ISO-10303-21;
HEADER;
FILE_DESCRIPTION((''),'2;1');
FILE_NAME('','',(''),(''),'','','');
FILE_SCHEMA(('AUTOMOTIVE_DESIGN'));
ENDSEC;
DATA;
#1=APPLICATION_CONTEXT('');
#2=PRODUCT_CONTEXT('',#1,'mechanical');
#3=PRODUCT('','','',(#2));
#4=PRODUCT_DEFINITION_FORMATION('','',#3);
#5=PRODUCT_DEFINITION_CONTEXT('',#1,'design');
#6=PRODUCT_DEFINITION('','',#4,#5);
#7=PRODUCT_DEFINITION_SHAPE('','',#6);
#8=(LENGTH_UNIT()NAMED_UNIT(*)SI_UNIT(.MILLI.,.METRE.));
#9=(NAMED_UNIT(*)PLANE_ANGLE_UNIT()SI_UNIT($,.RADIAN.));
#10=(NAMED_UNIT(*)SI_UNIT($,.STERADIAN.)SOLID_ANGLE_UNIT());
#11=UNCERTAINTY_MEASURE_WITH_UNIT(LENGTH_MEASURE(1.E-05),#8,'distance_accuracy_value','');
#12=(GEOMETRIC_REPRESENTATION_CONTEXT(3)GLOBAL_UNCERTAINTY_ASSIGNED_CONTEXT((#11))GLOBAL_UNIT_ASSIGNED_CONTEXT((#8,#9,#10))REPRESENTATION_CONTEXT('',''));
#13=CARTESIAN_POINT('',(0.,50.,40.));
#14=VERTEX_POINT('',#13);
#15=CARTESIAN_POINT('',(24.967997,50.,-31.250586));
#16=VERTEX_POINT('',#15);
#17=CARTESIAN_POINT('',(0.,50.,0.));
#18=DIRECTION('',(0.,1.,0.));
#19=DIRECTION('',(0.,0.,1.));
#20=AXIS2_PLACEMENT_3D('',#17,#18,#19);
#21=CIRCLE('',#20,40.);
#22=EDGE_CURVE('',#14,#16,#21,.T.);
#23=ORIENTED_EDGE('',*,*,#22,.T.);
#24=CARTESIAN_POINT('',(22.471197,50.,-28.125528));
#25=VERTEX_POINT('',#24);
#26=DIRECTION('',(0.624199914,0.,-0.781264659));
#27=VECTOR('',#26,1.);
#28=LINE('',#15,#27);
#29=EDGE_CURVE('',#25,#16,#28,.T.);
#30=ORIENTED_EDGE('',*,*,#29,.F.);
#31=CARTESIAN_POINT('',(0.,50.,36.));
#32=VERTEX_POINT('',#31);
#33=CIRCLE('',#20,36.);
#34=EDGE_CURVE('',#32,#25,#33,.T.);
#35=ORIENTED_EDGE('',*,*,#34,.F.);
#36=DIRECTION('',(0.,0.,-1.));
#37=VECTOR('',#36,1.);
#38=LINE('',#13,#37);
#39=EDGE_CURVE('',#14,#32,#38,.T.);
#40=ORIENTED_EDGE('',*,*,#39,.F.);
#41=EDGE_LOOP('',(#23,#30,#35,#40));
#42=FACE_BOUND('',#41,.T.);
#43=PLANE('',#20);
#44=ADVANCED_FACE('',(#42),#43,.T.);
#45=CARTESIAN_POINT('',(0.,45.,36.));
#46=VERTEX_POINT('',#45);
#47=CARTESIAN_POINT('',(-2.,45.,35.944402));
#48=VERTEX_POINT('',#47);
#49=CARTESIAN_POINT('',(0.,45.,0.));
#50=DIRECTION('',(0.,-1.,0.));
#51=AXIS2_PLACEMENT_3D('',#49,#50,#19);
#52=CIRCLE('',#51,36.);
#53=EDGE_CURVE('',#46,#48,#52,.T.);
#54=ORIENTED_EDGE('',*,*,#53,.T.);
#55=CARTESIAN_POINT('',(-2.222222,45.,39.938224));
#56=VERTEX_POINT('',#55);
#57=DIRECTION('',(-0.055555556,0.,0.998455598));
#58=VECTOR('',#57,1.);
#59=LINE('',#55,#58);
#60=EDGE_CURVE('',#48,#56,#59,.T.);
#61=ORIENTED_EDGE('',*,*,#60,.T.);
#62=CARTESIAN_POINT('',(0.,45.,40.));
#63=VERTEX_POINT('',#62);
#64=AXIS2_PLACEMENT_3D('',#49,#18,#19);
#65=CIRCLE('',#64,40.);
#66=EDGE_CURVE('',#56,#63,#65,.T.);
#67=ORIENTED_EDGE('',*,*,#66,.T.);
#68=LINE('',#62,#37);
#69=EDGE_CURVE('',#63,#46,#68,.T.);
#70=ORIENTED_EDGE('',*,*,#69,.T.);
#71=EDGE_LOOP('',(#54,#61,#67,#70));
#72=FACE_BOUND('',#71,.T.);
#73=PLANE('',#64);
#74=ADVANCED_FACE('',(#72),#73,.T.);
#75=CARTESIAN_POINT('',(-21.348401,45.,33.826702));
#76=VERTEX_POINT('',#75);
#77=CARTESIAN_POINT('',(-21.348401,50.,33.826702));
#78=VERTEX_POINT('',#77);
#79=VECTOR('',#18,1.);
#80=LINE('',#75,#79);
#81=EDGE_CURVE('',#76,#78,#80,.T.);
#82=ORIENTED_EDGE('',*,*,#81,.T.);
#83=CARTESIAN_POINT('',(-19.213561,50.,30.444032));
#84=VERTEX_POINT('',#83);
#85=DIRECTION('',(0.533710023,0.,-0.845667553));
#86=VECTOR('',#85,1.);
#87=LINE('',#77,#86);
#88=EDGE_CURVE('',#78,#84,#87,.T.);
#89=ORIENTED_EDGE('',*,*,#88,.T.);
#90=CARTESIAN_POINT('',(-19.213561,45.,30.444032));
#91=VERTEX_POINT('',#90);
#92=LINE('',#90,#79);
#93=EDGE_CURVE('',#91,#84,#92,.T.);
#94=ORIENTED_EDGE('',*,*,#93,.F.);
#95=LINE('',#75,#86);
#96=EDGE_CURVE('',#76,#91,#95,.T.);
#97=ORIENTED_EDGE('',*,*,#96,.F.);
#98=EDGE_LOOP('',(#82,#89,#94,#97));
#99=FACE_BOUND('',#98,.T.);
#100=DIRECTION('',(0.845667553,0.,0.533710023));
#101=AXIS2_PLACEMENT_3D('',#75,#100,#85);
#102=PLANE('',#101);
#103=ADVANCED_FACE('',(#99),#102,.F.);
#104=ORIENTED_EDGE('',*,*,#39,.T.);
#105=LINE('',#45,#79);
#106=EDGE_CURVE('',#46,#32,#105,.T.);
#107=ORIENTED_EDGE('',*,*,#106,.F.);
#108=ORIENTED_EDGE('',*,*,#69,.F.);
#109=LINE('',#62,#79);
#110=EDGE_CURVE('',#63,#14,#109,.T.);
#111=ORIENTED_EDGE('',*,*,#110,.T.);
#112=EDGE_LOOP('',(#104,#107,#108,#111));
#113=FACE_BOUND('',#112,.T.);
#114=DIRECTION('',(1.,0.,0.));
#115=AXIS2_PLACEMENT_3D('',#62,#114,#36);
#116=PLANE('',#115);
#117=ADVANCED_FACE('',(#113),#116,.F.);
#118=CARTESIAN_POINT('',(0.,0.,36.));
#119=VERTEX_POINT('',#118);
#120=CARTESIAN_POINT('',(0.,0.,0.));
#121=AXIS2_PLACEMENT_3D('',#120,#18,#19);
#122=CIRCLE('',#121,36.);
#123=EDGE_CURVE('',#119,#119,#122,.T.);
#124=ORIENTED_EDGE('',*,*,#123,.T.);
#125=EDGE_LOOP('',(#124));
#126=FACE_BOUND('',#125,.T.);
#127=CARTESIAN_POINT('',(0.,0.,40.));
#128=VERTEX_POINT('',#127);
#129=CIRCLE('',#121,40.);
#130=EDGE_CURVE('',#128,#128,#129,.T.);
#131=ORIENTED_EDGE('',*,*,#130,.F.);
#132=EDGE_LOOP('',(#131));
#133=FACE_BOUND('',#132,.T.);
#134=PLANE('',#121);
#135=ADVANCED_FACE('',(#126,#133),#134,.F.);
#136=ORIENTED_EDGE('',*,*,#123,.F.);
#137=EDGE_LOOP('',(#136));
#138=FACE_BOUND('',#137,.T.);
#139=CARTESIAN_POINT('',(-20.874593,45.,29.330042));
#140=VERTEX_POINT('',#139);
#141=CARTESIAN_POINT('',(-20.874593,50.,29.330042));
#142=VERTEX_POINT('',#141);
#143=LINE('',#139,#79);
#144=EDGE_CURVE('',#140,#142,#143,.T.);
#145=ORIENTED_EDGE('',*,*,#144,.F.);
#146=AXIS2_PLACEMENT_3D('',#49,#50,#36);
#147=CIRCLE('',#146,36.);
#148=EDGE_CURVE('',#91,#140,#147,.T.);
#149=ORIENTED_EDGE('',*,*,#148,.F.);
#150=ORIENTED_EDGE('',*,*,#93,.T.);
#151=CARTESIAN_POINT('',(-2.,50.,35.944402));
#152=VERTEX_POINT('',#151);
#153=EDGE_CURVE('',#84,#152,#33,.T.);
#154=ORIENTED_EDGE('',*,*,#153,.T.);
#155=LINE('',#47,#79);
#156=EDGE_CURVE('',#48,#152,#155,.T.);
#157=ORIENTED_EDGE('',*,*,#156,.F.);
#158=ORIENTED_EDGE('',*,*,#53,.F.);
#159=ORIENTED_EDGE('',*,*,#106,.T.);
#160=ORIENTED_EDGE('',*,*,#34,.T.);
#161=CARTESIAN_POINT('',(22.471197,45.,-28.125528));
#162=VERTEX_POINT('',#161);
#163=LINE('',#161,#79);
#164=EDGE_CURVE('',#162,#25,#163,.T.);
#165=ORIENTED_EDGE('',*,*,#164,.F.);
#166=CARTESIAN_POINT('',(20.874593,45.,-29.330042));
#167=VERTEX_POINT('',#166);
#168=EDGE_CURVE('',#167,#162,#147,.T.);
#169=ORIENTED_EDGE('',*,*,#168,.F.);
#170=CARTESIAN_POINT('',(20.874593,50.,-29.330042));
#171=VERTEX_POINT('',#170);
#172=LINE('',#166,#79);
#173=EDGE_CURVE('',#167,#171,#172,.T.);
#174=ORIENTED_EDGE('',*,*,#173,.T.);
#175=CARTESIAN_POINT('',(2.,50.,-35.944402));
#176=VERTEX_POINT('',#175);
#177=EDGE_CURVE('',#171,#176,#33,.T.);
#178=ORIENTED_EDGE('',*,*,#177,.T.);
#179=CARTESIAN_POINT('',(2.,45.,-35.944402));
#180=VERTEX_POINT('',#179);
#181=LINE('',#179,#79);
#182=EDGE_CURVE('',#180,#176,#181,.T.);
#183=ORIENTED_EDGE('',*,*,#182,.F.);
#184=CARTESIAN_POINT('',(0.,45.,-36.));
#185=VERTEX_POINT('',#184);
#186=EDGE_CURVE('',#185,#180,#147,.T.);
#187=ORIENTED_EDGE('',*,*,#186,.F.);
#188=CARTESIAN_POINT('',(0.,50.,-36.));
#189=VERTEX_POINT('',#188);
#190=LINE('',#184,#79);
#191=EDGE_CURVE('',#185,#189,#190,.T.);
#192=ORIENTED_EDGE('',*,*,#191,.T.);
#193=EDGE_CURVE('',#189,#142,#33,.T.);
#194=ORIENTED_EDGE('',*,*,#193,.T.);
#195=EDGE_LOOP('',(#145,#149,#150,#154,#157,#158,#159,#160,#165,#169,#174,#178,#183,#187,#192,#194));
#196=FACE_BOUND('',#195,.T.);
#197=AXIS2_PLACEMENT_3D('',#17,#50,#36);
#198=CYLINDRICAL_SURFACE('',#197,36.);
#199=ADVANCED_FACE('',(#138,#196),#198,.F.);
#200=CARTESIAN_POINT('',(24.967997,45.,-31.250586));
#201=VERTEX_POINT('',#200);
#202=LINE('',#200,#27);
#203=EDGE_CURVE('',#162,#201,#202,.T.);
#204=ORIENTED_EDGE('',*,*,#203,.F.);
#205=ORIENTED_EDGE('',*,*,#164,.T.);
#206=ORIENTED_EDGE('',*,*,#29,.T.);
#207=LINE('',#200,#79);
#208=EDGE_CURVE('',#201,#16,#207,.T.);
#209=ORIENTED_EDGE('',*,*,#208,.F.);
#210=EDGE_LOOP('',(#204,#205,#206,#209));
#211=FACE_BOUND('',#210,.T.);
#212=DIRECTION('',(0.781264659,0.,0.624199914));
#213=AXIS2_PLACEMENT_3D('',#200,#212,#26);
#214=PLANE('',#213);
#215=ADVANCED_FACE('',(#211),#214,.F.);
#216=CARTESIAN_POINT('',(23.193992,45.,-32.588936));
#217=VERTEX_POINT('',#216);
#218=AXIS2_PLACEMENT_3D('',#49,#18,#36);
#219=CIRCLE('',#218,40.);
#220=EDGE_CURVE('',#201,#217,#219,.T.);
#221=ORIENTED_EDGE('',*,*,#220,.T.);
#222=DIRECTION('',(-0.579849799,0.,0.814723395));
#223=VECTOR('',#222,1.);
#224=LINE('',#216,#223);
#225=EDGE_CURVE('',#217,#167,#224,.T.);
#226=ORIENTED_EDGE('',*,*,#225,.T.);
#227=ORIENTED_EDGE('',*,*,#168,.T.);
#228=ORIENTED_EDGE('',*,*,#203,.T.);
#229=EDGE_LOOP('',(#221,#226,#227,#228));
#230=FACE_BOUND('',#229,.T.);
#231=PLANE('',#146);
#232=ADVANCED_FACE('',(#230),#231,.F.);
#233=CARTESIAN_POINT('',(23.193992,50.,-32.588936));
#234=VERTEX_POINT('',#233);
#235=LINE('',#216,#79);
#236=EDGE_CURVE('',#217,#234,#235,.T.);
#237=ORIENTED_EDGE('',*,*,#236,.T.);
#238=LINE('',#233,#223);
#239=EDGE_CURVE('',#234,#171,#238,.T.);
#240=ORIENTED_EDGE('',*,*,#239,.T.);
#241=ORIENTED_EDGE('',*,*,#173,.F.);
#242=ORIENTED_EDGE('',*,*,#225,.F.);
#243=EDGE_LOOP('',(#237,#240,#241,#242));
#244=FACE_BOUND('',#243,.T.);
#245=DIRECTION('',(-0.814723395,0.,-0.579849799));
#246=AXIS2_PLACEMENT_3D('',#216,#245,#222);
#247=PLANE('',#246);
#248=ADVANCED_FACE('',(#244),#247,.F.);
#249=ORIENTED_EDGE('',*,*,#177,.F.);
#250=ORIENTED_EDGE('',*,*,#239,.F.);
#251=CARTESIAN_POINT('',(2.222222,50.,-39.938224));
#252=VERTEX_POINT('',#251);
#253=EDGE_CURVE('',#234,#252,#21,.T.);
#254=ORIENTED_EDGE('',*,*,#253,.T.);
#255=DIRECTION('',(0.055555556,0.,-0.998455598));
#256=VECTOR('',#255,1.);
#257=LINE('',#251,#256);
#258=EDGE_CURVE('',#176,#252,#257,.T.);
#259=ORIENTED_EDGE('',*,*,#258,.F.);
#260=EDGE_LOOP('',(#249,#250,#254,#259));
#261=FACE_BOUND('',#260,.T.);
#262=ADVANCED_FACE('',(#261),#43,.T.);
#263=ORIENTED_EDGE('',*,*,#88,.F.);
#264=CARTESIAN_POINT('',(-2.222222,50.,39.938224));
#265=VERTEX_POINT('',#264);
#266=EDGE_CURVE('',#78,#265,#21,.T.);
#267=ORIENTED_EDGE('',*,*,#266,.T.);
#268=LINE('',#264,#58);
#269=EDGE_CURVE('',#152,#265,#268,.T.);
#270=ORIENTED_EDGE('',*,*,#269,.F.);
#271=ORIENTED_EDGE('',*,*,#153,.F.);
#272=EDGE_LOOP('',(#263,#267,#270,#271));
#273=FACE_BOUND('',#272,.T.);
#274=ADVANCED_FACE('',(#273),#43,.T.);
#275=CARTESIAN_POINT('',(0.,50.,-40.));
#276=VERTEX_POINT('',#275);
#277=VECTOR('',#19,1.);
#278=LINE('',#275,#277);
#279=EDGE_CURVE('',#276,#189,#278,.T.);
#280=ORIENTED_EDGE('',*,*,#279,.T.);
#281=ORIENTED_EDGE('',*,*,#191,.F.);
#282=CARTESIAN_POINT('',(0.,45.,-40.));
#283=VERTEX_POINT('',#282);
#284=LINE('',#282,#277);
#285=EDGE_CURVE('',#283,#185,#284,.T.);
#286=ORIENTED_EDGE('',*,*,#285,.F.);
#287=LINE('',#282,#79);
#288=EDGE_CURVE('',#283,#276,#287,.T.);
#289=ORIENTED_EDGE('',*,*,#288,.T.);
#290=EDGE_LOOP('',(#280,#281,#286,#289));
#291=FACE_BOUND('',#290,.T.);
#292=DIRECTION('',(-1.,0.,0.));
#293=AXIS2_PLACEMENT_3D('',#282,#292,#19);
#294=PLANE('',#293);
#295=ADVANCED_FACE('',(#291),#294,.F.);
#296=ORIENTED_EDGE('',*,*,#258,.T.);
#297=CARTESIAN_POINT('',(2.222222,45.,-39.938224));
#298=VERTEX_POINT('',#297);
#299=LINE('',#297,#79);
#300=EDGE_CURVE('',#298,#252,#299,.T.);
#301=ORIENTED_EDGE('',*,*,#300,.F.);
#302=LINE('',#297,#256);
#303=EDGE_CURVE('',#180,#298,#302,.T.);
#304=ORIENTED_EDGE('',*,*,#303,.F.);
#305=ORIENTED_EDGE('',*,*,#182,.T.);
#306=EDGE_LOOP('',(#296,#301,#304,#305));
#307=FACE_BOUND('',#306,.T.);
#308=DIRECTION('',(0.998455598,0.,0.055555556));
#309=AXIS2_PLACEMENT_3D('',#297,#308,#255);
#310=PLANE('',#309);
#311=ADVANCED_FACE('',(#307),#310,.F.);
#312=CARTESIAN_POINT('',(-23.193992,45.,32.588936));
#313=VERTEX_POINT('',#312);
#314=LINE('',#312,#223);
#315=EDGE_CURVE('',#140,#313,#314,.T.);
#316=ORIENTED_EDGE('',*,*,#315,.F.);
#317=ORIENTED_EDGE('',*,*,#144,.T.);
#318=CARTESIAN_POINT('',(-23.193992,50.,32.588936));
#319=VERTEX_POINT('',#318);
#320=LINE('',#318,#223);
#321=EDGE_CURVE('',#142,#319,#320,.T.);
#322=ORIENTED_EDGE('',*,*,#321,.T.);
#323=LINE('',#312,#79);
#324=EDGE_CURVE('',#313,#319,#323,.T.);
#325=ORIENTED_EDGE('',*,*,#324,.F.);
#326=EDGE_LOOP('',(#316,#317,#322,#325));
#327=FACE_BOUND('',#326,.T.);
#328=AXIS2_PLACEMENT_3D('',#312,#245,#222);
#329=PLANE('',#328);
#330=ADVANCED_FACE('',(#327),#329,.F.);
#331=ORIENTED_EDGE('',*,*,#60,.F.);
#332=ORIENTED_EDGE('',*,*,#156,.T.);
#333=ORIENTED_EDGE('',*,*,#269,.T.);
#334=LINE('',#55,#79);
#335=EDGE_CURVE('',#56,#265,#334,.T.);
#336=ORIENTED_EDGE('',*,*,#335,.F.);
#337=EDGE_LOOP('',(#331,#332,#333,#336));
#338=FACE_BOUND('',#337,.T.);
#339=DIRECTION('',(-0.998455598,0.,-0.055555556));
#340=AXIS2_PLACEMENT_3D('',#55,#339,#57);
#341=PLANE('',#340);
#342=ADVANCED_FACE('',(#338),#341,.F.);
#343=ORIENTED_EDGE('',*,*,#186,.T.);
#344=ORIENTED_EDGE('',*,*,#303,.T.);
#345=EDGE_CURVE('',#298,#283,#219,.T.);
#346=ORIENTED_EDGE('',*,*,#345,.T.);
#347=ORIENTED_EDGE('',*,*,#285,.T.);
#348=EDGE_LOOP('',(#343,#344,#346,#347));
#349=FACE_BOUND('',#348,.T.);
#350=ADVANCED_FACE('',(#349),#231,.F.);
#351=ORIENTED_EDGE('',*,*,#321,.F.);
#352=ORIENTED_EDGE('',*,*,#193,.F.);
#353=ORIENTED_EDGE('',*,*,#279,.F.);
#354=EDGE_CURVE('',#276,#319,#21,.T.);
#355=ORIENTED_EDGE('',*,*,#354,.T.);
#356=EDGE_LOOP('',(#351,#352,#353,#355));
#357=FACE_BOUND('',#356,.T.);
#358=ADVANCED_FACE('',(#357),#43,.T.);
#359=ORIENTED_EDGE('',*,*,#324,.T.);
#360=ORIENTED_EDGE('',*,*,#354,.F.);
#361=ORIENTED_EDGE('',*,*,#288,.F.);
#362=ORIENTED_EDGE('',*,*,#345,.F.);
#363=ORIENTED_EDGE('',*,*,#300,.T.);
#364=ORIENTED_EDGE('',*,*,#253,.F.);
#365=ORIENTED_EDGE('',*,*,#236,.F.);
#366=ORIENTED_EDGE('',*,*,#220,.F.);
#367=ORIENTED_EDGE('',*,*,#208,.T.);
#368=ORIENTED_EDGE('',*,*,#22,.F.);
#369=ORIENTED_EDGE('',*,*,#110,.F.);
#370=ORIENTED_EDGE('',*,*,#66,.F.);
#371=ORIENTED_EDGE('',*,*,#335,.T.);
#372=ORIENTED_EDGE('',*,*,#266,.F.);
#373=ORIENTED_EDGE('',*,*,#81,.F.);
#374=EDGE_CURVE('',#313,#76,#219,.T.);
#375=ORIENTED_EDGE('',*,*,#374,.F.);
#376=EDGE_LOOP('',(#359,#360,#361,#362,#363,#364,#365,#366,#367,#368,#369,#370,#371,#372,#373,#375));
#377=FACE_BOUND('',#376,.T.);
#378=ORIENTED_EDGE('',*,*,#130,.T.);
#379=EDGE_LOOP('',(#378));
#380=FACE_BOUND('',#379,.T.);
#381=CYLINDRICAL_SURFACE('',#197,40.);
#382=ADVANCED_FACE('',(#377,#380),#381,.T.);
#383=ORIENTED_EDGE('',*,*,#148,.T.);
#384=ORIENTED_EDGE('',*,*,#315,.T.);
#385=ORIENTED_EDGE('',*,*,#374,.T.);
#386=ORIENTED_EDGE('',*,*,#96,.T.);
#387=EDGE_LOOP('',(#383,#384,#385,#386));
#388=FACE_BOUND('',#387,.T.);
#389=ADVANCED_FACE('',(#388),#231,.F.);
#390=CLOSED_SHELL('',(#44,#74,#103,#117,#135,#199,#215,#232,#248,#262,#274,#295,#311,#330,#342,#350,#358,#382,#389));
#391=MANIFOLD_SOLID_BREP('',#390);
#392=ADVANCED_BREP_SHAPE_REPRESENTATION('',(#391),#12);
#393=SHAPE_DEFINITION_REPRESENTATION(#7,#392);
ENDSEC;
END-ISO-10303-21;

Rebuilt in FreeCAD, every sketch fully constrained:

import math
import FreeCAD as App
import Part
import Sketcher

doc = App.newDocument("Part")
body = doc.addObject("PartDesign::Body", "Body")

# Sketch on XZ plane
sketch1 = body.newObject("Sketcher::SketchObject", "Sketch")
sketch1.AttachmentSupport = (doc.getObject("XZ_Plane"), [""])
sketch1.MapMode = "FlatFace"
sketch1.addGeometry(Part.Circle(App.Vector(0, 0, 0), App.Vector(0, 0, 1), 40), False)
sketch1.addGeometry(Part.Circle(App.Vector(0, 0, 0), App.Vector(0, 0, 1), 36), False)
sketch1.addConstraint(Sketcher.Constraint("Coincident", 0, 3, -1, 1))
sketch1.addConstraint(Sketcher.Constraint("Coincident", 1, 3, -1, 1))
sketch1.addConstraint(Sketcher.Constraint("Diameter", 0, 80.0))
sketch1.addConstraint(Sketcher.Constraint("Diameter", 1, 72.0))
pad1 = body.newObject("PartDesign::Pad", "Pad")
pad1.Profile = sketch1
pad1.Length = 50
pad1.Reversed = True

# Sketch on XZ plane
sketch2 = body.newObject("Sketcher::SketchObject", "Sketch001")
sketch2.AttachmentSupport = (doc.getObject("XZ_Plane"), [""])
sketch2.MapMode = "FlatFace"
sketch2.AttachmentOffset = App.Placement(App.Vector(0, 0, -50), App.Rotation())
sketch2.addGeometry(Part.LineSegment(App.Vector(0, 40, 0), App.Vector(0, 36, 0)), False)
sketch2.addGeometry(Part.ArcOfCircle(Part.Circle(App.Vector(0, 0, 0), App.Vector(0, 0, 1), 36), math.radians(90), math.radians(93.18)), False)
sketch2.addGeometry(Part.LineSegment(App.Vector(-2, 35.9, 0), App.Vector(-2.2, 39.9, 0)), False)
sketch2.addGeometry(Part.ArcOfCircle(Part.Circle(App.Vector(0, 0, 0), App.Vector(0, 0, 1), 40), math.radians(90), math.radians(93.18)), False)
sketch2.addGeometry(Part.LineSegment(App.Vector(0, -40, 0), App.Vector(0, -36, 0)), False)
sketch2.addGeometry(Part.ArcOfCircle(Part.Circle(App.Vector(0, 0, 0), App.Vector(0, 0, 1), 36), math.radians(-90), math.radians(-86.82)), False)
sketch2.addGeometry(Part.LineSegment(App.Vector(2, -35.9, 0), App.Vector(2.2, -39.9, 0)), False)
sketch2.addGeometry(Part.ArcOfCircle(Part.Circle(App.Vector(0, 0, 0), App.Vector(0, 0, 1), 40), math.radians(-90), math.radians(-86.82)), False)
sketch2.addGeometry(Part.LineSegment(App.Vector(23.2, -32.6, 0), App.Vector(20.9, -29.3, 0)), False)
sketch2.addGeometry(Part.ArcOfCircle(Part.Circle(App.Vector(0, 0, 0), App.Vector(0, 0, 1), 36), math.radians(-54.56), math.radians(-51.38)), False)
sketch2.addGeometry(Part.LineSegment(App.Vector(22.5, -28.1, 0), App.Vector(25, -31.3, 0)), False)
sketch2.addGeometry(Part.ArcOfCircle(Part.Circle(App.Vector(0, 0, 0), App.Vector(0, 0, 1), 40), math.radians(-54.56), math.radians(-51.38)), False)
sketch2.addGeometry(Part.LineSegment(App.Vector(-21.3, 33.8, 0), App.Vector(-19.2, 30.4, 0)), False)
sketch2.addGeometry(Part.ArcOfCircle(Part.Circle(App.Vector(0, 0, 0), App.Vector(0, 0, 1), 36), math.radians(122.26), math.radians(125.44)), False)
sketch2.addGeometry(Part.LineSegment(App.Vector(-20.9, 29.3, 0), App.Vector(-23.2, 32.6, 0)), False)
sketch2.addGeometry(Part.ArcOfCircle(Part.Circle(App.Vector(0, 0, 0), App.Vector(0, 0, 1), 40), math.radians(122.26), math.radians(125.44)), False)
sketch2.addConstraint(Sketcher.Constraint("Coincident", 0, 2, 1, 1))
sketch2.addConstraint(Sketcher.Constraint("Coincident", 1, 2, 2, 1))
sketch2.addConstraint(Sketcher.Constraint("Coincident", 2, 2, 3, 2))
sketch2.addConstraint(Sketcher.Constraint("Coincident", 3, 1, 0, 1))
sketch2.addConstraint(Sketcher.Constraint("Coincident", 4, 2, 5, 1))
sketch2.addConstraint(Sketcher.Constraint("Coincident", 5, 2, 6, 1))
sketch2.addConstraint(Sketcher.Constraint("Coincident", 6, 2, 7, 2))
sketch2.addConstraint(Sketcher.Constraint("Coincident", 7, 1, 4, 1))
sketch2.addConstraint(Sketcher.Constraint("Coincident", 8, 2, 9, 1))
sketch2.addConstraint(Sketcher.Constraint("Coincident", 9, 2, 10, 1))
sketch2.addConstraint(Sketcher.Constraint("Coincident", 10, 2, 11, 2))
sketch2.addConstraint(Sketcher.Constraint("Coincident", 11, 1, 8, 1))
sketch2.addConstraint(Sketcher.Constraint("Coincident", 12, 2, 13, 1))
sketch2.addConstraint(Sketcher.Constraint("Coincident", 13, 2, 14, 1))
sketch2.addConstraint(Sketcher.Constraint("Coincident", 14, 2, 15, 2))
sketch2.addConstraint(Sketcher.Constraint("Coincident", 15, 1, 12, 1))
sketch2.addConstraint(Sketcher.Constraint("Vertical", 0))
sketch2.addConstraint(Sketcher.Constraint("Vertical", 4))
sketch2.addConstraint(Sketcher.Constraint("Coincident", 1, 3, -1, 1))
sketch2.addConstraint(Sketcher.Constraint("Coincident", 3, 3, -1, 1))
sketch2.addConstraint(Sketcher.Constraint("Coincident", 5, 3, -1, 1))
sketch2.addConstraint(Sketcher.Constraint("Coincident", 7, 3, -1, 1))
sketch2.addConstraint(Sketcher.Constraint("Coincident", 9, 3, -1, 1))
sketch2.addConstraint(Sketcher.Constraint("Coincident", 11, 3, -1, 1))
sketch2.addConstraint(Sketcher.Constraint("Coincident", 13, 3, -1, 1))
sketch2.addConstraint(Sketcher.Constraint("Coincident", 15, 3, -1, 1))
sketch2.addConstraint(Sketcher.Constraint("Equal", 1, 5))
sketch2.addConstraint(Sketcher.Constraint("Equal", 3, 7))
sketch2.addConstraint(Sketcher.Constraint("Equal", 5, 9))
sketch2.addConstraint(Sketcher.Constraint("Equal", 7, 11))
sketch2.addConstraint(Sketcher.Constraint("Equal", 9, 13))
sketch2.addConstraint(Sketcher.Constraint("Equal", 11, 15))
sketch2.addConstraint(Sketcher.Constraint("PointOnObject", 0, 2, -2))
sketch2.addConstraint(Sketcher.Constraint("PointOnObject", 4, 2, -2))
sketch2.addConstraint(Sketcher.Constraint("Parallel", 2, 6))
sketch2.addConstraint(Sketcher.Constraint("Parallel", 8, 14))
sketch2.addConstraint(Sketcher.Constraint("Radius", 1, 36.000001))
sketch2.addConstraint(Sketcher.Constraint("Radius", 3, 39.999999))
sketch2.addConstraint(Sketcher.Constraint("DistanceX", 1, 2, -1, 1, 2.0))
sketch2.addConstraint(Sketcher.Constraint("DistanceX", -1, 1, 5, 2, 2.0))
sketch2.addConstraint(Sketcher.Constraint("DistanceX", 15, 1, -1, 1, 21.348401))
sketch2.addConstraint(Sketcher.Constraint("DistanceX", 9, 2, 10, 2, 2.4968))
sketch2.addConstraint(Sketcher.Constraint("DistanceX", 8, 2, 11, 1, 2.319399))
sketch2.addConstraint(Sketcher.Constraint("DistanceX", -1, 1, 11, 1, 23.193992))
sketch2.addConstraint(Sketcher.Constraint("DistanceX", 12, 2, -1, 1, 19.213561))
sketch2.addConstraint(Sketcher.Constraint("DistanceX", 14, 2, -1, 1, 23.193992))
sketch2.addConstraint(Sketcher.Constraint("DistanceX", 2, 2, 15, 3, 2.222221))
sketch2.addConstraint(Sketcher.Constraint("DistanceY", 11, 1, 10, 2, 1.338349))
pocket1 = body.newObject("PartDesign::Pocket", "Pocket")
pocket1.Profile = sketch2
pocket1.Length = 5
pocket1.Reversed = True

doc.recompute()
